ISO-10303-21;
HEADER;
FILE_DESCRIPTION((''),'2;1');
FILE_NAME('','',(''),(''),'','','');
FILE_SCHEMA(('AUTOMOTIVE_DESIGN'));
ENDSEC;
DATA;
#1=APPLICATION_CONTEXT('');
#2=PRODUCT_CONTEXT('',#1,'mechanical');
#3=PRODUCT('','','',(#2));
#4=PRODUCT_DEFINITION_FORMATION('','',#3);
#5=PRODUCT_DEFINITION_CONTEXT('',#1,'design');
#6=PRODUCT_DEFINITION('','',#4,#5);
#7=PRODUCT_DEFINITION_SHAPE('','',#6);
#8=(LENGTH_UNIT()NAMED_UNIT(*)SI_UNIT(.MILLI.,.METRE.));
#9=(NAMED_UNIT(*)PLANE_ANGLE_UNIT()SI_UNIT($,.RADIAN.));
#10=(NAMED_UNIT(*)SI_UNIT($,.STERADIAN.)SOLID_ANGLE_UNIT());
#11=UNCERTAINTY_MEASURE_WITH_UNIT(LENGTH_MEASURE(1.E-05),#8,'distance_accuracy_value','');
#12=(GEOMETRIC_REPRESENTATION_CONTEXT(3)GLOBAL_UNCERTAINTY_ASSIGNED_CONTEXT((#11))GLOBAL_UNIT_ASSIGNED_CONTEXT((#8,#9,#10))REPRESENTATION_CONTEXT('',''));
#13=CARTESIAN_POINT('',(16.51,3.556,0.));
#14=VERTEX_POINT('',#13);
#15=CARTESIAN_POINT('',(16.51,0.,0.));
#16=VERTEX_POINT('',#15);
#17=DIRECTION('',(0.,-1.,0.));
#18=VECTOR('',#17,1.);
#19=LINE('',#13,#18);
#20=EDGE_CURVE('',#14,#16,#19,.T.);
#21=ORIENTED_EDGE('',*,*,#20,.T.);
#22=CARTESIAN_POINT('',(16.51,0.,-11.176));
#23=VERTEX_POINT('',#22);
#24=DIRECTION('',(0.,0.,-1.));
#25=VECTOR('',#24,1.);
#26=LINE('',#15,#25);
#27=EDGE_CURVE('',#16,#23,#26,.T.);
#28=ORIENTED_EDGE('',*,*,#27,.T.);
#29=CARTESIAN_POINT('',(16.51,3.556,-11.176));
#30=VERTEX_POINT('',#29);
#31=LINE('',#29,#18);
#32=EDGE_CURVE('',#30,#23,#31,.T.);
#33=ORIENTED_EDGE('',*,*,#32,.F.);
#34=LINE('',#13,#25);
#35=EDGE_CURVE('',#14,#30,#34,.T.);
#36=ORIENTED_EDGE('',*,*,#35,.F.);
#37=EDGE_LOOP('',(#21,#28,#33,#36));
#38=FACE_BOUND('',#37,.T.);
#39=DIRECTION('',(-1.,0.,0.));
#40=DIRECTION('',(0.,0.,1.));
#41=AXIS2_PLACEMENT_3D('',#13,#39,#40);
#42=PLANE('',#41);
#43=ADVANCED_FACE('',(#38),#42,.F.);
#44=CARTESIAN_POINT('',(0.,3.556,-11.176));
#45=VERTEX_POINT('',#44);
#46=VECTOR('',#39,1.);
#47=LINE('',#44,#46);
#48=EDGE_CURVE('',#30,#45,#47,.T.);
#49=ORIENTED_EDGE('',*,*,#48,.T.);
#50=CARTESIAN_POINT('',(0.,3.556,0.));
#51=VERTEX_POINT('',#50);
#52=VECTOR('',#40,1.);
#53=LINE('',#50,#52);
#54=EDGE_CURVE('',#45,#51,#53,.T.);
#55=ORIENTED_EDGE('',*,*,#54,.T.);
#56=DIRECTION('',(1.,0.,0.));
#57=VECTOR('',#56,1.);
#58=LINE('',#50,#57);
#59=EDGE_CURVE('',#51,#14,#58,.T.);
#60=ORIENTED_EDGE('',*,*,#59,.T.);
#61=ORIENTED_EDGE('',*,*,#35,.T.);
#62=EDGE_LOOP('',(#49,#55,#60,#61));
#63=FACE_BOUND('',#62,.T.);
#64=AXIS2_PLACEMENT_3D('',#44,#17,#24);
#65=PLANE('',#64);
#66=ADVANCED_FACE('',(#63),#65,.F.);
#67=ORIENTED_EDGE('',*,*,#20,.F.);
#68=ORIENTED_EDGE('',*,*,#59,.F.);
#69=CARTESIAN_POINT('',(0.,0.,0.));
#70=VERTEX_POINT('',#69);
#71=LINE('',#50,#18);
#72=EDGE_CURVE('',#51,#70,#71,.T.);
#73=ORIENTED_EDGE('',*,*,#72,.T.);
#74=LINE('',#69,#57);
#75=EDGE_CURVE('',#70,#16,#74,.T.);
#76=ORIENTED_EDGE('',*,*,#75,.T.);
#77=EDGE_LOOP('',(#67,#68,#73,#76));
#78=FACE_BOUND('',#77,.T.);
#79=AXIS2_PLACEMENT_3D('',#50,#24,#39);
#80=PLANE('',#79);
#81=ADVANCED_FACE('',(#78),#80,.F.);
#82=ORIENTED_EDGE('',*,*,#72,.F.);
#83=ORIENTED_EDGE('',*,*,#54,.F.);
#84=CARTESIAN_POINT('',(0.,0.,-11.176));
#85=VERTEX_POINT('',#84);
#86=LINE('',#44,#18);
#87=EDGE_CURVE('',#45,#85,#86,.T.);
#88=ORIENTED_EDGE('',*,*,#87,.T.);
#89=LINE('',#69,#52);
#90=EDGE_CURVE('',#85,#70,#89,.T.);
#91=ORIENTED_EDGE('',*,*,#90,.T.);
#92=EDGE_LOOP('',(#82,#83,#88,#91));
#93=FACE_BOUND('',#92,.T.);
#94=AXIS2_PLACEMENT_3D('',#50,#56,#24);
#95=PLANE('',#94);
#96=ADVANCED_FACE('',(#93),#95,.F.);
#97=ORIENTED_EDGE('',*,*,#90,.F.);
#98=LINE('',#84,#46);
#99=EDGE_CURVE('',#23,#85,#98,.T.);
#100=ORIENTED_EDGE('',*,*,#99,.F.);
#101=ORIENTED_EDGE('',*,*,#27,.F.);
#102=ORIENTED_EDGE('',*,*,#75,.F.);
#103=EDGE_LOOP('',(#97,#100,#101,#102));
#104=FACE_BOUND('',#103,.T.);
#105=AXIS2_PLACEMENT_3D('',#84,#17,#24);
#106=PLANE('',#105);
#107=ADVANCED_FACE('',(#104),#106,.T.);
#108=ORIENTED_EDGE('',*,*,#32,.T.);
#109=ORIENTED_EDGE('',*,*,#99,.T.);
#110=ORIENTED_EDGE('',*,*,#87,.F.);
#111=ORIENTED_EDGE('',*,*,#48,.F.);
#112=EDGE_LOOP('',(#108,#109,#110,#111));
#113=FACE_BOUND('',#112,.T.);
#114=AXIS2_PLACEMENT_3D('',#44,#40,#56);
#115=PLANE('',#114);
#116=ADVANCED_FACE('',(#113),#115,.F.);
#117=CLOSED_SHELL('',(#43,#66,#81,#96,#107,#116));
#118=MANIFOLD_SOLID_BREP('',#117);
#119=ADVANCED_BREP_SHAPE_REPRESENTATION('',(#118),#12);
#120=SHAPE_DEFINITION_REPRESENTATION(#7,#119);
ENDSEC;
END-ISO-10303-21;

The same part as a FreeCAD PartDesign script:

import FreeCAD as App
import Part
import Sketcher
Q = App.Units.Quantity


def add_polygon(sketch, points):
    """Adds a closed chain of lines whose ends are joined by coincident constraints."""
    first, n = sketch.GeometryCount, len(points)
    for a, b in zip(points, points[1:] + points[:1]):
        sketch.addGeometry(Part.LineSegment(App.Vector(*a, 0), App.Vector(*b, 0)), False)
    for i in range(n):
        sketch.addConstraint(Sketcher.Constraint("Coincident", first + i, 2, first + (i + 1) % n, 1))

doc = App.newDocument("Part")
body = doc.addObject("PartDesign::Body", "Body")

sketch1 = doc.addObject("Sketcher::SketchObject", "Sketch")
body.addObject(sketch1)
sketch1.AttachmentSupport = (doc.XZ_Plane, [""])
sketch1.MapMode = "FlatFace"
add_polygon(sketch1, [(0, -11), (0, 0), (17, 0), (17, -11)])
sketch1.addConstraint([
    Sketcher.Constraint("Vertical", 0),
    Sketcher.Constraint("Horizontal", 1),
    Sketcher.Constraint("Vertical", 2),
    Sketcher.Constraint("Horizontal", 3),
    Sketcher.Constraint("Coincident", 0, 2, -1, 1),
    Sketcher.Constraint("DistanceX", 1, 1, 1, 2, Q("0.65 in")),
    Sketcher.Constraint("DistanceY", 0, 1, 0, 2, Q("0.44 in")),
])
pad1 = doc.addObject("PartDesign::Pad", "Pad")
body.addObject(pad1)
pad1.Profile = sketch1
pad1.Length = Q("0.14 in")
pad1.Reversed = True

doc.recompute()
